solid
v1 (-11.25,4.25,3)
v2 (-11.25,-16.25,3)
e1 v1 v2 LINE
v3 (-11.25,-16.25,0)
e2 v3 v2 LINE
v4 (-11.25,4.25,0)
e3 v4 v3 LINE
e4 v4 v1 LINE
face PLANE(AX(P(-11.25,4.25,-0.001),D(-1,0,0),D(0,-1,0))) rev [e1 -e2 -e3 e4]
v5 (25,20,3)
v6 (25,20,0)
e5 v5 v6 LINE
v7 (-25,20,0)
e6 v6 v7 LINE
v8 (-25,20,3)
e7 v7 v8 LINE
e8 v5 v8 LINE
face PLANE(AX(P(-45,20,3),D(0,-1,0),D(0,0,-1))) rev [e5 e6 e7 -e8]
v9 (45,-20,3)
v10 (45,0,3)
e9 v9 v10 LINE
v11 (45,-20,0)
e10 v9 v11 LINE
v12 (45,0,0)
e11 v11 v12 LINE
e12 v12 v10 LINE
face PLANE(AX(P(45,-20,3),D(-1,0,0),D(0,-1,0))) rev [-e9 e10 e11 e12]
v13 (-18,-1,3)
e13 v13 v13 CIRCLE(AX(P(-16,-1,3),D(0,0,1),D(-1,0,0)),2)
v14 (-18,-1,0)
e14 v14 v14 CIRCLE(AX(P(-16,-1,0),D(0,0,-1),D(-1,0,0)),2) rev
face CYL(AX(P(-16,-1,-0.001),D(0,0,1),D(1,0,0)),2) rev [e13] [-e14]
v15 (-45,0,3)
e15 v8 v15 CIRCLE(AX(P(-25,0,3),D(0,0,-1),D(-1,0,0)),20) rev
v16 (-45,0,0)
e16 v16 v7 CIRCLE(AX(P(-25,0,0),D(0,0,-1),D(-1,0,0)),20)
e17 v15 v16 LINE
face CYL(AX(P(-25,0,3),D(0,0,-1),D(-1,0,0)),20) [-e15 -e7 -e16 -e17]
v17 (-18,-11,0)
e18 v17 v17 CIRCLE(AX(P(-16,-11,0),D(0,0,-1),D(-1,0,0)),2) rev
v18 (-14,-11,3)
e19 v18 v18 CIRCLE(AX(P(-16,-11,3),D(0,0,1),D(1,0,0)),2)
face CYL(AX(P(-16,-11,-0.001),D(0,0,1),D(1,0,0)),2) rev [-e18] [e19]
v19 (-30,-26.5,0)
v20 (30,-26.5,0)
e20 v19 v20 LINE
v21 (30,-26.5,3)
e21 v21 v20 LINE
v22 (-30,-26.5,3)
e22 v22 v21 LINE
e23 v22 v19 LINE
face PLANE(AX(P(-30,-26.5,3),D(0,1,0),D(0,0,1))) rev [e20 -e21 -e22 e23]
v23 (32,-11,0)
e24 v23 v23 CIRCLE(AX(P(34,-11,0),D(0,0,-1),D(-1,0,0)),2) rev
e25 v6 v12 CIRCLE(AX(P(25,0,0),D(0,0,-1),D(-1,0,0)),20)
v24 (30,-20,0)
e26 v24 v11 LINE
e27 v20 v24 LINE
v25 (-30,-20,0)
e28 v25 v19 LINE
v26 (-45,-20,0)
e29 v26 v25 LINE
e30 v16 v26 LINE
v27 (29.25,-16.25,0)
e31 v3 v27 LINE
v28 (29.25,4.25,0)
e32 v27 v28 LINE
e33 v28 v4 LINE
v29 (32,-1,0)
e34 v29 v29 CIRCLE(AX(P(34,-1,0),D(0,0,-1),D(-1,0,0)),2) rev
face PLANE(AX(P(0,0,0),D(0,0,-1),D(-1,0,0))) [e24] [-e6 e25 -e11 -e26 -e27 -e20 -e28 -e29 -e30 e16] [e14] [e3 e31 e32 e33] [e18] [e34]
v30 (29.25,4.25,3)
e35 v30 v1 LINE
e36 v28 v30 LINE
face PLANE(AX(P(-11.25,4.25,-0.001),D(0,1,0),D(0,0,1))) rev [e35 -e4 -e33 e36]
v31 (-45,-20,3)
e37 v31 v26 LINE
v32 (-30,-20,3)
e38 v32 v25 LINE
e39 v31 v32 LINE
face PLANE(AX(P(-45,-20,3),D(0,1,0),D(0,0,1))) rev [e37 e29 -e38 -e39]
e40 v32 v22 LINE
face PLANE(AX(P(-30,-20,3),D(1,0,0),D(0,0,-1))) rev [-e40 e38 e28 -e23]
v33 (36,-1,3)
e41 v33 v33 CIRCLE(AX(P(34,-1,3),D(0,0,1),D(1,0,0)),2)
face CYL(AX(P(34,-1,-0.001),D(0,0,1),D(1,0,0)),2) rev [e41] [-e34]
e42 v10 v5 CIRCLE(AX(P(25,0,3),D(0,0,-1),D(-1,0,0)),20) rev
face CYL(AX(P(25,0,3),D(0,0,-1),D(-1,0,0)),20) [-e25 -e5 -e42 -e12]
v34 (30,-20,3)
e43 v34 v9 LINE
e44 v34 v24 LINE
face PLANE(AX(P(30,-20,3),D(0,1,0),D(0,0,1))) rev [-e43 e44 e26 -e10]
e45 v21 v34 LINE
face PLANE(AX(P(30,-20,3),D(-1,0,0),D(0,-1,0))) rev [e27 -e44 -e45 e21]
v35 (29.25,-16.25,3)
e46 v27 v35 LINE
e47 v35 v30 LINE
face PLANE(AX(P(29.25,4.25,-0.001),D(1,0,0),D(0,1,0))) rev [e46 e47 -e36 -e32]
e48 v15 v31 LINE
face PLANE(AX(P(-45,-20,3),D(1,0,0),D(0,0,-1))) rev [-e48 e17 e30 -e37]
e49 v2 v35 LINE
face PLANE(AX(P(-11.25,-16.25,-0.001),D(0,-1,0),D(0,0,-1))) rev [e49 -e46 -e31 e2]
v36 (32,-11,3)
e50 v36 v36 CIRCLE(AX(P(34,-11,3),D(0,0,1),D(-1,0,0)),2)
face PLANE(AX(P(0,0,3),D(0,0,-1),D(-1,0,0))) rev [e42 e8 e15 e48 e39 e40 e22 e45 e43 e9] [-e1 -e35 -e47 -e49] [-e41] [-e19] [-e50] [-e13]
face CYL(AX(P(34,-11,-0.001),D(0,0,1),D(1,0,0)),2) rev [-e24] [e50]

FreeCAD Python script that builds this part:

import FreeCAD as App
import Part
import Sketcher
from FreeCAD import Vector


def edges_at(feature, points):
    """Names of the edges that pass closest to the given points."""
    edges = feature.Shape.Edges
    near = lambda p: min(range(len(edges)), key=lambda i: edges[i].distToShape(Part.Vertex(*p))[0])
    return sorted({f"Edge{near(p) + 1}" for p in points})


def add_polygon(sketch, points):
    """Adds a closed chain of lines whose ends are joined by coincident constraints."""
    first, n = sketch.GeometryCount, len(points)
    for a, b in zip(points, points[1:] + points[:1]):
        sketch.addGeometry(Part.LineSegment(App.Vector(*a, 0), App.Vector(*b, 0)), False)
    for i in range(n):
        sketch.addConstraint(Sketcher.Constraint("Coincident", first + i, 2, first + (i + 1) % n, 1))

doc = App.newDocument("Part")
body = doc.addObject("PartDesign::Body", "Body")

sketch1 = body.newObject("Sketcher::SketchObject", "Sketch")
sketch1.AttachmentSupport = (doc.getObject("XY_Plane"), [""])
sketch1.MapMode = "FlatFace"
add_polygon(sketch1, [(-45, -20), (-30, -20), (-30, -26), (30, -26), (30, -20), (45, -20), (45, 20), (-45, 20)])
sketch1.addConstraint(Sketcher.Constraint("Horizontal", 0))
sketch1.addConstraint(Sketcher.Constraint("Vertical", 1))
sketch1.addConstraint(Sketcher.Constraint("Horizontal", 2))
sketch1.addConstraint(Sketcher.Constraint("Vertical", 3))
sketch1.addConstraint(Sketcher.Constraint("Horizontal", 4))
sketch1.addConstraint(Sketcher.Constraint("Vertical", 5))
sketch1.addConstraint(Sketcher.Constraint("Horizontal", 6))
sketch1.addConstraint(Sketcher.Constraint("Vertical", 7))
sketch1.addConstraint(Sketcher.Constraint("Symmetric", 4, 2, 6, 2, -1, 1))
sketch1.addConstraint(Sketcher.Constraint("Symmetric", 0, 2, 3, 2, -2))
sketch1.addConstraint(Sketcher.Constraint("DistanceX", 0, 1, 0, 2, 15.0))
sketch1.addConstraint(Sketcher.Constraint("DistanceX", 2, 1, 2, 2, 60.0))
sketch1.addConstraint(Sketcher.Constraint("DistanceY", 5, 1, 5, 2, 40.0))
sketch1.addConstraint(Sketcher.Constraint("DistanceY", 1, 2, 1, 1, 6.5))
pad1 = body.newObject("PartDesign::Pad", "Pad")
pad1.Profile = sketch1
pad1.Length = 3

sketch2 = body.newObject("Sketcher::SketchObject", "Sketch001")
sketch2.AttachmentSupport = (doc.getObject("XY_Plane"), [""])
sketch2.MapMode = "FlatFace"
sketch2.AttachmentOffset = App.Placement(Vector(0, 0, 3), App.Rotation())
add_polygon(sketch2, [(-11, 4), (-11, -16), (29, -16), (29, 4)])
sketch2.addConstraint(Sketcher.Constraint("Vertical", 0))
sketch2.addConstraint(Sketcher.Constraint("Horizontal", 1))
sketch2.addConstraint(Sketcher.Constraint("Vertical", 2))
sketch2.addConstraint(Sketcher.Constraint("Horizontal", 3))
sketch2.addConstraint(Sketcher.Constraint("DistanceX", 1, 1, 1, 2, 40.5))
sketch2.addConstraint(Sketcher.Constraint("DistanceY", 0, 2, 0, 1, 20.5))
sketch2.addConstraint(Sketcher.Constraint("DistanceX", 0, 2, -1, 1, 11.25))
sketch2.addConstraint(Sketcher.Constraint("DistanceY", 0, 2, -1, 1, 16.25))
pocket1 = body.newObject("PartDesign::Pocket", "Pocket")
pocket1.Profile = sketch2
pocket1.Type = "UpToFirst"
doc.recompute()

fillet = body.newObject("PartDesign::Fillet", "Fillet")
fillet.Base = (pocket1, edges_at(pocket1, [(-45, 20, 1.5), (45, 20, 1.5)]))
fillet.Radius = 20

sketch3 = body.newObject("Sketcher::SketchObject", "Sketch002")
sketch3.AttachmentSupport = (doc.getObject("XY_Plane"), [""])
sketch3.MapMode = "FlatFace"
sketch3.AttachmentOffset = App.Placement(Vector(0, 0, 3), App.Rotation())
sketch3.addGeometry(Part.Circle(Vector(34, -1, 0), Vector(0, 0, 1), 2), False)
sketch3.addConstraint(Sketcher.Constraint("Diameter", 0, 4.0))
sketch3.addConstraint(Sketcher.Constraint("DistanceX", -1, 1, 0, 3, 34.0))
sketch3.addConstraint(Sketcher.Constraint("DistanceY", 0, 3, -1, 1, 1.0))
pocket2 = body.newObject("PartDesign::Pocket", "Pocket001")
pocket2.Profile = sketch3
pocket2.Type = "UpToFirst"

sketch4 = body.newObject("Sketcher::SketchObject", "Sketch003")
sketch4.AttachmentSupport = (doc.getObject("XY_Plane"), [""])
sketch4.MapMode = "FlatFace"
sketch4.AttachmentOffset = App.Placement(Vector(0, 0, 3), App.Rotation())
sketch4.addGeometry(Part.Circle(Vector(-16, -1, 0), Vector(0, 0, 1), 2), False)
sketch4.addConstraint(Sketcher.Constraint("Diameter", 0, 4.0))
sketch4.addConstraint(Sketcher.Constraint("DistanceX", 0, 3, -1, 1, 16.0))
sketch4.addConstraint(Sketcher.Constraint("DistanceY", 0, 3, -1, 1, 1.0))
pocket3 = body.newObject("PartDesign::Pocket", "Pocket002")
pocket3.Profile = sketch4
pocket3.Type = "UpToFirst"

sketch5 = body.newObject("Sketcher::SketchObject", "Sketch004")
sketch5.AttachmentSupport = (doc.getObject("XY_Plane"), [""])
sketch5.MapMode = "FlatFace"
sketch5.AttachmentOffset = App.Placement(Vector(0, 0, 3), App.Rotation())
sketch5.addGeometry(Part.Circle(Vector(34, -11, 0), Vector(0, 0, 1), 2), False)
sketch5.addConstraint(Sketcher.Constraint("Diameter", 0, 4.0))
sketch5.addConstraint(Sketcher.Constraint("DistanceX", -1, 1, 0, 3, 34.0))
sketch5.addConstraint(Sketcher.Constraint("DistanceY", 0, 3, -1, 1, 11.0))
pocket4 = body.newObject("PartDesign::Pocket", "Pocket003")
pocket4.Profile = sketch5
pocket4.Type = "UpToFirst"

sketch6 = body.newObject("Sketcher::SketchObject", "Sketch005")
sketch6.AttachmentSupport = (doc.getObject("XY_Plane"), [""])
sketch6.MapMode = "FlatFace"
sketch6.AttachmentOffset = App.Placement(Vector(0, 0, 3), App.Rotation())
sketch6.addGeometry(Part.Circle(Vector(-16, -11, 0), Vector(0, 0, 1), 2), False)
sketch6.addConstraint(Sketcher.Constraint("Diameter", 0, 4.0))
sketch6.addConstraint(Sketcher.Constraint("DistanceX", 0, 3, -1, 1, 16.0))
sketch6.addConstraint(Sketcher.Constraint("DistanceY", 0, 3, -1, 1, 11.0))
pocket5 = body.newObject("PartDesign::Pocket", "Pocket004")
pocket5.Profile = sketch6
pocket5.Type = "UpToFirst"

doc.recompute()
